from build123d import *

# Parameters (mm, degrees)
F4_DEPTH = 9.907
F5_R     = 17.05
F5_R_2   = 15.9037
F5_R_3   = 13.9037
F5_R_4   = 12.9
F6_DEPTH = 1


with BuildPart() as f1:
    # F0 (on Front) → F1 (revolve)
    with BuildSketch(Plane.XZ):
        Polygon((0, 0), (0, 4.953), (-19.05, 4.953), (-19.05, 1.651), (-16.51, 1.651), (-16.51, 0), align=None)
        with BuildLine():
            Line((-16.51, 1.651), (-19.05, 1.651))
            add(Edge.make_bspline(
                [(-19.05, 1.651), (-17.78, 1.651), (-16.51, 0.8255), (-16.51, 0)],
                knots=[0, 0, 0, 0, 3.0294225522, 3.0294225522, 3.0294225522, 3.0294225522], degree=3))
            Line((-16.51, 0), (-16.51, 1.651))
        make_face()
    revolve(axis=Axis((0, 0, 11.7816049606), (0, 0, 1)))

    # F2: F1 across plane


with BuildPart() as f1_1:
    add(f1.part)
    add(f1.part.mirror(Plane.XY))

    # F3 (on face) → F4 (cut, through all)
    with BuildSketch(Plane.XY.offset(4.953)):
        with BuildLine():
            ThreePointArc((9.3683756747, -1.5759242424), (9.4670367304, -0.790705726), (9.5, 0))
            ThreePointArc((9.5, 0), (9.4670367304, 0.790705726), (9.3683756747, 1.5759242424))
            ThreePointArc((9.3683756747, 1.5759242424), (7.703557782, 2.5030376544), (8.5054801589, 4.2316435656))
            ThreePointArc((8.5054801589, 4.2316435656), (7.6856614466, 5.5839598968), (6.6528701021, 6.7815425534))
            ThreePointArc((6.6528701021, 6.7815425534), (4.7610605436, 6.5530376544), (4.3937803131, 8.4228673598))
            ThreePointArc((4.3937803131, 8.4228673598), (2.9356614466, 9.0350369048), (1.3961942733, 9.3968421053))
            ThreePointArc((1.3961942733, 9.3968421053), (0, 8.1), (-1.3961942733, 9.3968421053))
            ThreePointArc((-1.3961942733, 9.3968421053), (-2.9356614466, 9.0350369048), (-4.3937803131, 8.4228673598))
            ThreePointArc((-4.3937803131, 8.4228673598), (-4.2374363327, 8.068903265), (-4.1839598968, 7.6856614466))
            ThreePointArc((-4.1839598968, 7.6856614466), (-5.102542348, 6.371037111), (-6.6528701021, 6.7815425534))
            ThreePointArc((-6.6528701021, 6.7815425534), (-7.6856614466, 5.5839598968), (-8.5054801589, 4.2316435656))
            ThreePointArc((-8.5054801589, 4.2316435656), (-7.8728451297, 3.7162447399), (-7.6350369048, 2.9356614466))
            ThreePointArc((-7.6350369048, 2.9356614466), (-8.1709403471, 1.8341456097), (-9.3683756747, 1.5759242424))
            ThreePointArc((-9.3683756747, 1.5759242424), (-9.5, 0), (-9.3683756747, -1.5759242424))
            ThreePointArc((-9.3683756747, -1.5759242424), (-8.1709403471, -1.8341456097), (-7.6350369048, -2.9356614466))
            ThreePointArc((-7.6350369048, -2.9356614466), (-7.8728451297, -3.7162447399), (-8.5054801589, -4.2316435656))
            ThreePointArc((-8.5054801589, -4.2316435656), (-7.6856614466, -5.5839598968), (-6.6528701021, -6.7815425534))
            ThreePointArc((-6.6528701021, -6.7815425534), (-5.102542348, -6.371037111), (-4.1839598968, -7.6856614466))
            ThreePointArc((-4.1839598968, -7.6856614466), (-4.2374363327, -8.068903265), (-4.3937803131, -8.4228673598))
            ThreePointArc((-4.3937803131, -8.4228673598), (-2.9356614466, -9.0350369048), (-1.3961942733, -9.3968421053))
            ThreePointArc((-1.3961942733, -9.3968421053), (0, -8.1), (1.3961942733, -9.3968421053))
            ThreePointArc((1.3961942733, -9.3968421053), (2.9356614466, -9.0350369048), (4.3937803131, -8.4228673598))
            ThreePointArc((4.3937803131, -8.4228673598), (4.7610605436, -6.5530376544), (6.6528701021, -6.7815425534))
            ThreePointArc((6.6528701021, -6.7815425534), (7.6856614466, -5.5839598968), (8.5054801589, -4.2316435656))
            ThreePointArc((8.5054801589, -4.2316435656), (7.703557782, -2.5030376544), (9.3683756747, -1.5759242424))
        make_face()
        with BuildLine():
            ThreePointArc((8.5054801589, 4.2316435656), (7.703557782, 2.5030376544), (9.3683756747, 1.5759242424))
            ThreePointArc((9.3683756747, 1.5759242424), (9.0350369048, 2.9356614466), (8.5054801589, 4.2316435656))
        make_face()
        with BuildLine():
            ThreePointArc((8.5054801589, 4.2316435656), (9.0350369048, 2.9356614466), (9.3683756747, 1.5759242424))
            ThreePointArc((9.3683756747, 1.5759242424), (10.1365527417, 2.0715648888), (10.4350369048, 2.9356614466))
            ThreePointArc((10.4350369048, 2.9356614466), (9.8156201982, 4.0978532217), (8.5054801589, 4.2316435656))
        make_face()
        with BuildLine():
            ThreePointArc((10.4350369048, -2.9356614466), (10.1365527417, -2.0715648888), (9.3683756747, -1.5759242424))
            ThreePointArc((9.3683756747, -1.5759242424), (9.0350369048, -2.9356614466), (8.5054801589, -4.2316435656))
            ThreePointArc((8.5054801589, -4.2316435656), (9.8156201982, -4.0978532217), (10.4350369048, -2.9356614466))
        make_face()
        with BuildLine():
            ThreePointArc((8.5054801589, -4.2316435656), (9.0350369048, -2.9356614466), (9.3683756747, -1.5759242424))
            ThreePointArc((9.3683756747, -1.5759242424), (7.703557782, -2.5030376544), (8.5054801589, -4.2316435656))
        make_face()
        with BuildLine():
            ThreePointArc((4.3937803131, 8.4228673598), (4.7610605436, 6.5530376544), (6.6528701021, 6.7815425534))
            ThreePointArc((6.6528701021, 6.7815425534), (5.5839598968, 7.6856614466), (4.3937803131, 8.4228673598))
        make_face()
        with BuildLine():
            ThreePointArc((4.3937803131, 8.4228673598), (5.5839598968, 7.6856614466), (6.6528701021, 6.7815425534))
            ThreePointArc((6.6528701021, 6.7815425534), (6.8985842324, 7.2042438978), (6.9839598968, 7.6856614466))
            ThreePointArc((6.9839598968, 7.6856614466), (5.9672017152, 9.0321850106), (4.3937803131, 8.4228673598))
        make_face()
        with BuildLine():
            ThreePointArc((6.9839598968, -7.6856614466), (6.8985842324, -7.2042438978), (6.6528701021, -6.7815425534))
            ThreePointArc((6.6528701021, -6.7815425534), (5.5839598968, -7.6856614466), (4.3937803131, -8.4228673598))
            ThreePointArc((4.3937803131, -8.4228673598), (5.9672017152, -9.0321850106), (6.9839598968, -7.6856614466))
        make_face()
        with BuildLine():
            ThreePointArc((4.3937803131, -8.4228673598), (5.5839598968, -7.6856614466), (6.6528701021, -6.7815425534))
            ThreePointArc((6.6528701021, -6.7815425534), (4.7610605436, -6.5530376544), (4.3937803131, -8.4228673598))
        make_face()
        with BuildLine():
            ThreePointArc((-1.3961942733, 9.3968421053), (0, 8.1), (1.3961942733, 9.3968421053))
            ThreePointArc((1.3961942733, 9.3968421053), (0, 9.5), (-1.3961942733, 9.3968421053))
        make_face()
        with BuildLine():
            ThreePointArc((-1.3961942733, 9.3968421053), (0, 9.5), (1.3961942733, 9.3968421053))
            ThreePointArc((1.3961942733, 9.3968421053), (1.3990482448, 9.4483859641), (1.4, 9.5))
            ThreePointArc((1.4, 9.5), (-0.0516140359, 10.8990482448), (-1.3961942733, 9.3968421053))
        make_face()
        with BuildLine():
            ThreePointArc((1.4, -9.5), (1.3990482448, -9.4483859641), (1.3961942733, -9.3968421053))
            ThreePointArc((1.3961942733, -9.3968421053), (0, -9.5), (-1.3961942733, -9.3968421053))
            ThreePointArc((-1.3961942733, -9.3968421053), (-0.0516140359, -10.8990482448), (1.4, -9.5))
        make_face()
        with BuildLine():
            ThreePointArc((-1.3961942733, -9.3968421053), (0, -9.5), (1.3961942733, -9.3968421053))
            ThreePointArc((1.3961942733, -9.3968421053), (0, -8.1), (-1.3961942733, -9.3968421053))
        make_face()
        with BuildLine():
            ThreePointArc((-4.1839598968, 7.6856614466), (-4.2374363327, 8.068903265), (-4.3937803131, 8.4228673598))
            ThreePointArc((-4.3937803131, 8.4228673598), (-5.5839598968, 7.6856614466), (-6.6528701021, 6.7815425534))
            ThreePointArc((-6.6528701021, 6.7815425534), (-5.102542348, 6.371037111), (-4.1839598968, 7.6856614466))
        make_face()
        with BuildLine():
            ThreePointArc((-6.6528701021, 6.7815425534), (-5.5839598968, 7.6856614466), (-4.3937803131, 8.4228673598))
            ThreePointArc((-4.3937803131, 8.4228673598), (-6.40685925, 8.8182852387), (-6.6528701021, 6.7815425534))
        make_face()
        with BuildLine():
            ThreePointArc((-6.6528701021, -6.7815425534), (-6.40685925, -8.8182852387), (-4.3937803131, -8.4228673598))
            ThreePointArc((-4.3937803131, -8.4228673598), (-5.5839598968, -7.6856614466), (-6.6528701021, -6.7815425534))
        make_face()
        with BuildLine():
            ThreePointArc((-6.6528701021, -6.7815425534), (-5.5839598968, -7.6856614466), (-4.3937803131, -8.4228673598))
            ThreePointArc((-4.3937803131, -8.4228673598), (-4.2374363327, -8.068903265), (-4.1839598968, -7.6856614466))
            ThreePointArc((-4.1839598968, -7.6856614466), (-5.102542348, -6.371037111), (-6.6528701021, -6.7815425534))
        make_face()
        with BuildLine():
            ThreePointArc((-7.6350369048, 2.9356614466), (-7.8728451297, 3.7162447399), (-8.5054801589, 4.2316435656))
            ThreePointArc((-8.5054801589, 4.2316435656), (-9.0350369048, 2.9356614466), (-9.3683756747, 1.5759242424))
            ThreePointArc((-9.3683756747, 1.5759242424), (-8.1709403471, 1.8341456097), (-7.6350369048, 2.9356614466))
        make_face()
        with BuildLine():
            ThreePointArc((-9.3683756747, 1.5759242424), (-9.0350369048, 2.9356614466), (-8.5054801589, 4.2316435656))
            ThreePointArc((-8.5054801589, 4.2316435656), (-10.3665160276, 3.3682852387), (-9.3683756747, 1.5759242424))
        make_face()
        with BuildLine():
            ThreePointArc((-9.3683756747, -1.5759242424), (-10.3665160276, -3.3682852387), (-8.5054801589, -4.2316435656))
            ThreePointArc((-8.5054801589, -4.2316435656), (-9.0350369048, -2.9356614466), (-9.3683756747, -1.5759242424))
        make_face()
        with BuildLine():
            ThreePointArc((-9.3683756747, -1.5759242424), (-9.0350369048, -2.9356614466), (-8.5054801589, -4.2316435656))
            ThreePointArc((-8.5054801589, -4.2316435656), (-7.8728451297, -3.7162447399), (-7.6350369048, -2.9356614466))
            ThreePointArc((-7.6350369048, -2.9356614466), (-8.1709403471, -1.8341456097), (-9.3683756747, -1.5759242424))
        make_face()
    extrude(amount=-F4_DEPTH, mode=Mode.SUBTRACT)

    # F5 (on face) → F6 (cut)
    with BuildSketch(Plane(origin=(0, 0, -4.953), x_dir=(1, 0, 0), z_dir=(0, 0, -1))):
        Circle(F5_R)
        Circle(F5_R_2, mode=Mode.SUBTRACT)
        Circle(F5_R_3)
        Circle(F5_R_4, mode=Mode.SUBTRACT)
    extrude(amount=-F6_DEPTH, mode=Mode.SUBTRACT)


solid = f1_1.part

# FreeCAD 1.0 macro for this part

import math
import FreeCAD as App
import Part
import Sketcher
Q = App.Units.Quantity

doc = App.newDocument("Part")
body = doc.addObject("PartDesign::Body", "Body")

# Sketch on XZ plane
sketch1 = doc.addObject("Sketcher::SketchObject", "Sketch")
body.addObject(sketch1)
sketch1.AttachmentSupport = (doc.XZ_Plane, [""])
sketch1.MapMode = "FlatFace"
sketch1.addGeometry(Part.LineSegment(App.Vector(0, 0, 0), App.Vector(0, 4.953, 0)), False)
sketch1.addGeometry(Part.LineSegment(App.Vector(0, 4.953, 0), App.Vector(-19.05, 4.953, 0)), False)
sketch1.addGeometry(Part.LineSegment(App.Vector(-19.05, 4.953, 0), App.Vector(-19.05, 1.651, 0)), False)
sketch1.addGeometry(Part.BSplineCurve([App.Vector(-19.05, 1.651, 0), App.Vector(-17.78, 1.651, 0), App.Vector(-16.51, 0.8255, 0), App.Vector(-16.51, 0, 0)], [4, 4], [0, 3.029422552], False, 3, [1, 1, 1, 1], False), False)
sketch1.addGeometry(Part.LineSegment(App.Vector(-16.51, 0, 0), App.Vector(0, 0, 0)), False)
sketch1.addConstraint(Sketcher.Constraint("Block", 3))
sketch1.addConstraint(Sketcher.Constraint("Coincident", 0, 2, 1, 1))
sketch1.addConstraint(Sketcher.Constraint("Coincident", 1, 2, 2, 1))
sketch1.addConstraint(Sketcher.Constraint("Coincident", 2, 2, 3, 1))
sketch1.addConstraint(Sketcher.Constraint("Coincident", 3, 2, 4, 1))
sketch1.addConstraint(Sketcher.Constraint("Coincident", 4, 2, 0, 1))
sketch1.addConstraint(Sketcher.Constraint("Vertical", 0))
sketch1.addConstraint(Sketcher.Constraint("Horizontal", 1))
sketch1.addConstraint(Sketcher.Constraint("Vertical", 2))
sketch1.addConstraint(Sketcher.Constraint("Horizontal", 4))
sketch1.addConstraint(Sketcher.Constraint("PointOnObject", 0, 2, -2))
sketch1.addConstraint(Sketcher.Constraint("DistanceY", 0, 1, 0, 2, Q("4.953 mm")))
revolution = doc.addObject("PartDesign::Revolution", "Revolution")
body.addObject(revolution)
revolution.Profile = sketch1
revolution.ReferenceAxis = (sketch1, ["V_Axis"])
revolution.Angle = 360
body2 = doc.addObject("PartDesign::Body", "Body001")
doc.recompute()

body2.BaseFeature = body
doc.recompute()

mirroring = doc.addObject("Part::Mirroring", "Mirroring")
mirroring.Source = body
mirroring.Base = App.Vector(0, 0, 0)
mirroring.Normal = App.Vector(0, 0, 1)
body3 = doc.addObject("PartDesign::Body", "Body002")
body3.BaseFeature = mirroring
boolean = doc.addObject("PartDesign::Boolean", "Boolean")
body2.addObject(boolean)
boolean.Type = "Fuse"
boolean.addObjects([body3])
doc.recompute()

# Sketch on XY plane
sketch2 = doc.addObject("Sketcher::SketchObject", "Sketch001")
body2.addObject(sketch2)
sketch2.AttachmentSupport = (doc.getObject("XY_Plane001"), [""])
sketch2.MapMode = "FlatFace"
sketch2.AttachmentOffset = App.Placement(App.Vector(0, 0, 4.953), App.Rotation())
sketch2.addGeometry(Part.ArcOfCircle(Part.Circle(App.Vector(0, 0, 0), App.Vector(0, 0, 1), 9.5), math.radians(-9.55), math.radians(0)), False)
sketch2.addGeometry(Part.ArcOfCircle(Part.Circle(App.Vector(0, 0, 0), App.Vector(0, 0, 1), 9.5), math.radians(0), math.radians(9.55)), False)
sketch2.addGeometry(Part.ArcOfCircle(Part.Circle(App.Vector(9.04, 2.94, 0), App.Vector(0, 0, 1), 1.4), math.radians(-76), math.radians(0)), False)
sketch2.addGeometry(Part.ArcOfCircle(Part.Circle(App.Vector(9.04, 2.94, 0), App.Vector(0, 0, 1), 1.4), math.radians(0), math.radians(112)), False)
sketch2.addGeometry(Part.ArcOfCircle(Part.Circle(App.Vector(0, 0, 0), App.Vector(0, 0, 1), 9.5), math.radians(26.45), math.radians(45.55)), False)
sketch2.addGeometry(Part.ArcOfCircle(Part.Circle(App.Vector(5.58, 7.69, 0), App.Vector(0, 0, 1), 1.4), math.radians(-40), math.radians(0)), False)
sketch2.addGeometry(Part.ArcOfCircle(Part.Circle(App.Vector(5.58, 7.69, 0), App.Vector(0, 0, 1), 1.4), math.radians(0), math.radians(148)), False)
sketch2.addGeometry(Part.ArcOfCircle(Part.Circle(App.Vector(0, 0, 0), App.Vector(0, 0, 1), 9.5), math.radians(62.45), math.radians(81.55)), False)
sketch2.addGeometry(Part.ArcOfCircle(Part.Circle(App.Vector(0, 9.5, 0), App.Vector(0, 0, 1), 1.4), math.radians(-4.23), math.radians(0)), False)
sketch2.addGeometry(Part.ArcOfCircle(Part.Circle(App.Vector(0, 9.5, 0), App.Vector(0, 0, 1), 1.4), math.radians(0), math.radians(184)), False)
sketch2.addGeometry(Part.ArcOfCircle(Part.Circle(App.Vector(0, 0, 0), App.Vector(0, 0, 1), 9.5), math.radians(98.45), math.radians(117.55)), False)
sketch2.addGeometry(Part.ArcOfCircle(Part.Circle(App.Vector(-5.58, 7.69, 0), App.Vector(0, 0, 1), 1.4), math.radians(32), math.radians(220)), False)
sketch2.addGeometry(Part.ArcOfCircle(Part.Circle(App.Vector(0, 0, 0), App.Vector(0, 0, 1), 9.5), math.radians(134.45), math.radians(153.55)), False)
sketch2.addGeometry(Part.ArcOfCircle(Part.Circle(App.Vector(-9.04, 2.94, 0), App.Vector(0, 0, 1), 1.4), math.radians(68), math.radians(256)), False)
sketch2.addGeometry(Part.ArcOfCircle(Part.Circle(App.Vector(0, 0, 0), App.Vector(0, 0, 1), 9.5), math.radians(170.45), math.radians(189.55)), False)
sketch2.addGeometry(Part.ArcOfCircle(Part.Circle(App.Vector(-9.04, -2.94, 0), App.Vector(0, 0, 1), 1.4), math.radians(104), math.radians(292)), False)
sketch2.addGeometry(Part.ArcOfCircle(Part.Circle(App.Vector(0, 0, 0), App.Vector(0, 0, 1), 9.5), math.radians(-153.55), math.radians(-134.45)), False)
sketch2.addGeometry(Part.ArcOfCircle(Part.Circle(App.Vector(-5.58, -7.69, 0), App.Vector(0, 0, 1), 1.4), math.radians(140), math.radians(328)), False)
sketch2.addGeometry(Part.ArcOfCircle(Part.Circle(App.Vector(0, 0, 0), App.Vector(0, 0, 1), 9.5), math.radians(-117.55), math.radians(-98.45)), False)
sketch2.addGeometry(Part.ArcOfCircle(Part.Circle(App.Vector(0, -9.5, 0), App.Vector(0, 0, 1), 1.4), math.radians(176), math.radians(360)), False)
sketch2.addGeometry(Part.ArcOfCircle(Part.Circle(App.Vector(0, -9.5, 0), App.Vector(0, 0, 1), 1.4), math.radians(0), math.radians(4.23)), False)
sketch2.addGeometry(Part.ArcOfCircle(Part.Circle(App.Vector(0, 0, 0), App.Vector(0, 0, 1), 9.5), math.radians(-81.55), math.radians(-62.45)), False)
sketch2.addGeometry(Part.ArcOfCircle(Part.Circle(App.Vector(5.58, -7.69, 0), App.Vector(0, 0, 1), 1.4), math.radians(-148), math.radians(0)), False)
sketch2.addGeometry(Part.ArcOfCircle(Part.Circle(App.Vector(5.58, -7.69, 0), App.Vector(0, 0, 1), 1.4), math.radians(0), math.radians(40)), False)
sketch2.addGeometry(Part.ArcOfCircle(Part.Circle(App.Vector(0, 0, 0), App.Vector(0, 0, 1), 9.5), math.radians(-45.55), math.radians(-26.45)), False)
sketch2.addGeometry(Part.ArcOfCircle(Part.Circle(App.Vector(9.04, -2.94, 0), App.Vector(0, 0, 1), 1.4), math.radians(-112), math.radians(0)), False)
sketch2.addGeometry(Part.ArcOfCircle(Part.Circle(App.Vector(9.04, -2.94, 0), App.Vector(0, 0, 1), 1.4), math.radians(0), math.radians(76)), False)
sketch2.addConstraint(Sketcher.Constraint("Tangent", 0, 2, 1, 1))
sketch2.addConstraint(Sketcher.Constraint("Coincident", 1, 2, 2, 1))
sketch2.addConstraint(Sketcher.Constraint("Tangent", 2, 2, 3, 1))
sketch2.addConstraint(Sketcher.Constraint("Coincident", 3, 2, 4, 1))
sketch2.addConstraint(Sketcher.Constraint("Coincident", 4, 2, 5, 1))
sketch2.addConstraint(Sketcher.Constraint("Tangent", 5, 2, 6, 1))
sketch2.addConstraint(Sketcher.Constraint("Coincident", 6, 2, 7, 1))
sketch2.addConstraint(Sketcher.Constraint("Coincident", 7, 2, 8, 1))
sketch2.addConstraint(Sketcher.Constraint("Tangent", 8, 2, 9, 1))
sketch2.addConstraint(Sketcher.Constraint("Coincident", 9, 2, 10, 1))
sketch2.addConstraint(Sketcher.Constraint("Coincident", 10, 2, 11, 1))
sketch2.addConstraint(Sketcher.Constraint("Coincident", 11, 2, 12, 1))
sketch2.addConstraint(Sketcher.Constraint("Coincident", 12, 2, 13, 1))
sketch2.addConstraint(Sketcher.Constraint("Coincident", 13, 2, 14, 1))
sketch2.addConstraint(Sketcher.Constraint("Coincident", 14, 2, 15, 1))
sketch2.addConstraint(Sketcher.Constraint("Coincident", 15, 2, 16, 1))
sketch2.addConstraint(Sketcher.Constraint("Coincident", 16, 2, 17, 1))
sketch2.addConstraint(Sketcher.Constraint("Coincident", 17, 2, 18, 1))
sketch2.addConstraint(Sketcher.Constraint("Coincident", 18, 2, 19, 1))
sketch2.addConstraint(Sketcher.Constraint("Tangent", 19, 2, 20, 1))
sketch2.addConstraint(Sketcher.Constraint("Coincident", 20, 2, 21, 1))
sketch2.addConstraint(Sketcher.Constraint("Coincident", 21, 2, 22, 1))
sketch2.addConstraint(Sketcher.Constraint("Tangent", 22, 2, 23, 1))
sketch2.addConstraint(Sketcher.Constraint("Coincident", 23, 2, 24, 1))
sketch2.addConstraint(Sketcher.Constraint("Coincident", 24, 2, 25, 1))
sketch2.addConstraint(Sketcher.Constraint("Tangent", 25, 2, 26, 1))
sketch2.addConstraint(Sketcher.Constraint("Coincident", 26, 2, 0, 1))
sketch2.addConstraint(Sketcher.Constraint("Coincident", 0, 3, -1, 1))
sketch2.addConstraint(Sketcher.Constraint("Coincident", 4, 3, -1, 1))
sketch2.addConstraint(Sketcher.Constraint("Coincident", 7, 3, -1, 1))
sketch2.addConstraint(Sketcher.Constraint("Coincident", 10, 3, -1, 1))
sketch2.addConstraint(Sketcher.Constraint("Coincident", 12, 3, -1, 1))
sketch2.addConstraint(Sketcher.Constraint("Coincident", 14, 3, -1, 1))
sketch2.addConstraint(Sketcher.Constraint("Coincident", 16, 3, -1, 1))
sketch2.addConstraint(Sketcher.Constraint("Coincident", 18, 3, -1, 1))
sketch2.addConstraint(Sketcher.Constraint("Coincident", 21, 3, -1, 1))
sketch2.addConstraint(Sketcher.Constraint("Coincident", 24, 3, -1, 1))
sketch2.addConstraint(Sketcher.Constraint("Equal", 0, 1))
sketch2.addConstraint(Sketcher.Constraint("Equal", 2, 3))
sketch2.addConstraint(Sketcher.Constraint("Equal", 1, 4))
sketch2.addConstraint(Sketcher.Constraint("Equal", 3, 5))
sketch2.addConstraint(Sketcher.Constraint("Equal", 5, 6))
sketch2.addConstraint(Sketcher.Constraint("Equal", 4, 7))
sketch2.addConstraint(Sketcher.Constraint("Equal", 6, 8))
sketch2.addConstraint(Sketcher.Constraint("Equal", 8, 9))
sketch2.addConstraint(Sketcher.Constraint("Equal", 7, 10))
sketch2.addConstraint(Sketcher.Constraint("Equal", 9, 11))
sketch2.addConstraint(Sketcher.Constraint("Equal", 10, 12))
sketch2.addConstraint(Sketcher.Constraint("Equal", 11, 13))
sketch2.addConstraint(Sketcher.Constraint("Equal", 12, 14))
sketch2.addConstraint(Sketcher.Constraint("Equal", 13, 15))
sketch2.addConstraint(Sketcher.Constraint("Equal", 14, 16))
sketch2.addConstraint(Sketcher.Constraint("Equal", 15, 17))
sketch2.addConstraint(Sketcher.Constraint("Equal", 16, 18))
sketch2.addConstraint(Sketcher.Constraint("Equal", 17, 19))
sketch2.addConstraint(Sketcher.Constraint("Equal", 19, 20))
sketch2.addConstraint(Sketcher.Constraint("Equal", 18, 21))
sketch2.addConstraint(Sketcher.Constraint("Equal", 20, 22))
sketch2.addConstraint(Sketcher.Constraint("Equal", 22, 23))
sketch2.addConstraint(Sketcher.Constraint("Equal", 21, 24))
sketch2.addConstraint(Sketcher.Constraint("Equal", 23, 25))
sketch2.addConstraint(Sketcher.Constraint("Equal", 25, 26))
sketch2.addConstraint(Sketcher.Constraint("Symmetric", 2, 3, 15, 3, -1, 1))
sketch2.addConstraint(Sketcher.Constraint("Symmetric", 5, 3, 17, 3, -1, 1))
sketch2.addConstraint(Sketcher.Constraint("Symmetric", 8, 3, 19, 3, -1, 1))
sketch2.addConstraint(Sketcher.Constraint("Symmetric", 11, 3, 22, 3, -1, 1))
sketch2.addConstraint(Sketcher.Constraint("Symmetric", 13, 3, 25, 3, -1, 1))
sketch2.addConstraint(Sketcher.Constraint("Symmetric", 5, 3, 11, 3, -2))
sketch2.addConstraint(Sketcher.Constraint("Symmetric", 2, 3, 13, 3, -2))
sketch2.addConstraint(Sketcher.Constraint("Symmetric", 8, 2, 19, 2, -1))
sketch2.addConstraint(Sketcher.Constraint("PointOnObject", 0, 2, -1))
sketch2.addConstraint(Sketcher.Constraint("Horizontal", 13, 3, 2, 2))
sketch2.addConstraint(Sketcher.Constraint("Horizontal", 11, 3, 5, 2))
sketch2.addConstraint(Sketcher.Constraint("Horizontal", 9, 3, 8, 2))
sketch2.addConstraint(Sketcher.Constraint("Horizontal", 23, 3, 22, 2))
sketch2.addConstraint(Sketcher.Constraint("Horizontal", 26, 3, 25, 2))
sketch2.addConstraint(Sketcher.Constraint("Radius", 0, Q("9.5 mm")))
sketch2.addConstraint(Sketcher.Constraint("Radius", 2, Q("1.4 mm")))
sketch2.addConstraint(Sketcher.Constraint("DistanceY", -1, 1, 8, 3, Q("9.5 mm")))
sketch2.addConstraint(Sketcher.Constraint("DistanceY", 3, 3, 5, 3, Q("4.75 mm")))
sketch2.addConstraint(Sketcher.Constraint("DistanceY", 3, 2, 4, 2, Q("2.549899 mm")))
sketch2.addConstraint(Sketcher.Constraint("DistanceY", 11, 2, 9, 2, Q("2.6153 mm")))
sketch2.addConstraint(Sketcher.Constraint("DistanceX", 15, 2, 17, 2, Q("4.1117 mm")))
pocket1 = doc.addObject("PartDesign::Pocket", "Pocket")
body2.addObject(pocket1)
pocket1.Profile = sketch2
pocket1.Type = "ThroughAll"

# Sketch on XY plane
sketch3 = doc.addObject("Sketcher::SketchObject", "Sketch002")
body2.addObject(sketch3)
sketch3.AttachmentSupport = (doc.getObject("XY_Plane001"), [""])
sketch3.MapMode = "FlatFace"
sketch3.AttachmentOffset = App.Placement(App.Vector(0, 0, -4.953), App.Rotation())
sketch3.addGeometry(Part.Circle(App.Vector(0, 0, 0), App.Vector(0, 0, 1), 17), False)
sketch3.addGeometry(Part.Circle(App.Vector(0, 0, 0), App.Vector(0, 0, 1), 16), False)
sketch3.addGeometry(Part.Circle(App.Vector(0, 0, 0), App.Vector(0, 0, 1), 14), False)
sketch3.addGeometry(Part.Circle(App.Vector(0, 0, 0), App.Vector(0, 0, 1), 13), False)
sketch3.addConstraint(Sketcher.Constraint("Coincident", 0, 3, -1, 1))
sketch3.addConstraint(Sketcher.Constraint("Coincident", 1, 3, -1, 1))
sketch3.addConstraint(Sketcher.Constraint("Coincident", 2, 3, -1, 1))
sketch3.addConstraint(Sketcher.Constraint("Coincident", 3, 3, -1, 1))
sketch3.addConstraint(Sketcher.Constraint("Diameter", 0, Q("34.1 mm")))
sketch3.addConstraint(Sketcher.Constraint("Diameter", 3, Q("25.8 mm")))
sketch3.addConstraint(Sketcher.Constraint("Diameter", 1, Q("31.8074 mm")))
sketch3.addConstraint(Sketcher.Constraint("Diameter", 2, Q("27.8074 mm")))
pocket2 = doc.addObject("PartDesign::Pocket", "Pocket001")
body2.addObject(pocket2)
pocket2.Profile = sketch3
pocket2.Length = 1
pocket2.Reversed = True
mirroring.Visibility = False

doc.recompute()
